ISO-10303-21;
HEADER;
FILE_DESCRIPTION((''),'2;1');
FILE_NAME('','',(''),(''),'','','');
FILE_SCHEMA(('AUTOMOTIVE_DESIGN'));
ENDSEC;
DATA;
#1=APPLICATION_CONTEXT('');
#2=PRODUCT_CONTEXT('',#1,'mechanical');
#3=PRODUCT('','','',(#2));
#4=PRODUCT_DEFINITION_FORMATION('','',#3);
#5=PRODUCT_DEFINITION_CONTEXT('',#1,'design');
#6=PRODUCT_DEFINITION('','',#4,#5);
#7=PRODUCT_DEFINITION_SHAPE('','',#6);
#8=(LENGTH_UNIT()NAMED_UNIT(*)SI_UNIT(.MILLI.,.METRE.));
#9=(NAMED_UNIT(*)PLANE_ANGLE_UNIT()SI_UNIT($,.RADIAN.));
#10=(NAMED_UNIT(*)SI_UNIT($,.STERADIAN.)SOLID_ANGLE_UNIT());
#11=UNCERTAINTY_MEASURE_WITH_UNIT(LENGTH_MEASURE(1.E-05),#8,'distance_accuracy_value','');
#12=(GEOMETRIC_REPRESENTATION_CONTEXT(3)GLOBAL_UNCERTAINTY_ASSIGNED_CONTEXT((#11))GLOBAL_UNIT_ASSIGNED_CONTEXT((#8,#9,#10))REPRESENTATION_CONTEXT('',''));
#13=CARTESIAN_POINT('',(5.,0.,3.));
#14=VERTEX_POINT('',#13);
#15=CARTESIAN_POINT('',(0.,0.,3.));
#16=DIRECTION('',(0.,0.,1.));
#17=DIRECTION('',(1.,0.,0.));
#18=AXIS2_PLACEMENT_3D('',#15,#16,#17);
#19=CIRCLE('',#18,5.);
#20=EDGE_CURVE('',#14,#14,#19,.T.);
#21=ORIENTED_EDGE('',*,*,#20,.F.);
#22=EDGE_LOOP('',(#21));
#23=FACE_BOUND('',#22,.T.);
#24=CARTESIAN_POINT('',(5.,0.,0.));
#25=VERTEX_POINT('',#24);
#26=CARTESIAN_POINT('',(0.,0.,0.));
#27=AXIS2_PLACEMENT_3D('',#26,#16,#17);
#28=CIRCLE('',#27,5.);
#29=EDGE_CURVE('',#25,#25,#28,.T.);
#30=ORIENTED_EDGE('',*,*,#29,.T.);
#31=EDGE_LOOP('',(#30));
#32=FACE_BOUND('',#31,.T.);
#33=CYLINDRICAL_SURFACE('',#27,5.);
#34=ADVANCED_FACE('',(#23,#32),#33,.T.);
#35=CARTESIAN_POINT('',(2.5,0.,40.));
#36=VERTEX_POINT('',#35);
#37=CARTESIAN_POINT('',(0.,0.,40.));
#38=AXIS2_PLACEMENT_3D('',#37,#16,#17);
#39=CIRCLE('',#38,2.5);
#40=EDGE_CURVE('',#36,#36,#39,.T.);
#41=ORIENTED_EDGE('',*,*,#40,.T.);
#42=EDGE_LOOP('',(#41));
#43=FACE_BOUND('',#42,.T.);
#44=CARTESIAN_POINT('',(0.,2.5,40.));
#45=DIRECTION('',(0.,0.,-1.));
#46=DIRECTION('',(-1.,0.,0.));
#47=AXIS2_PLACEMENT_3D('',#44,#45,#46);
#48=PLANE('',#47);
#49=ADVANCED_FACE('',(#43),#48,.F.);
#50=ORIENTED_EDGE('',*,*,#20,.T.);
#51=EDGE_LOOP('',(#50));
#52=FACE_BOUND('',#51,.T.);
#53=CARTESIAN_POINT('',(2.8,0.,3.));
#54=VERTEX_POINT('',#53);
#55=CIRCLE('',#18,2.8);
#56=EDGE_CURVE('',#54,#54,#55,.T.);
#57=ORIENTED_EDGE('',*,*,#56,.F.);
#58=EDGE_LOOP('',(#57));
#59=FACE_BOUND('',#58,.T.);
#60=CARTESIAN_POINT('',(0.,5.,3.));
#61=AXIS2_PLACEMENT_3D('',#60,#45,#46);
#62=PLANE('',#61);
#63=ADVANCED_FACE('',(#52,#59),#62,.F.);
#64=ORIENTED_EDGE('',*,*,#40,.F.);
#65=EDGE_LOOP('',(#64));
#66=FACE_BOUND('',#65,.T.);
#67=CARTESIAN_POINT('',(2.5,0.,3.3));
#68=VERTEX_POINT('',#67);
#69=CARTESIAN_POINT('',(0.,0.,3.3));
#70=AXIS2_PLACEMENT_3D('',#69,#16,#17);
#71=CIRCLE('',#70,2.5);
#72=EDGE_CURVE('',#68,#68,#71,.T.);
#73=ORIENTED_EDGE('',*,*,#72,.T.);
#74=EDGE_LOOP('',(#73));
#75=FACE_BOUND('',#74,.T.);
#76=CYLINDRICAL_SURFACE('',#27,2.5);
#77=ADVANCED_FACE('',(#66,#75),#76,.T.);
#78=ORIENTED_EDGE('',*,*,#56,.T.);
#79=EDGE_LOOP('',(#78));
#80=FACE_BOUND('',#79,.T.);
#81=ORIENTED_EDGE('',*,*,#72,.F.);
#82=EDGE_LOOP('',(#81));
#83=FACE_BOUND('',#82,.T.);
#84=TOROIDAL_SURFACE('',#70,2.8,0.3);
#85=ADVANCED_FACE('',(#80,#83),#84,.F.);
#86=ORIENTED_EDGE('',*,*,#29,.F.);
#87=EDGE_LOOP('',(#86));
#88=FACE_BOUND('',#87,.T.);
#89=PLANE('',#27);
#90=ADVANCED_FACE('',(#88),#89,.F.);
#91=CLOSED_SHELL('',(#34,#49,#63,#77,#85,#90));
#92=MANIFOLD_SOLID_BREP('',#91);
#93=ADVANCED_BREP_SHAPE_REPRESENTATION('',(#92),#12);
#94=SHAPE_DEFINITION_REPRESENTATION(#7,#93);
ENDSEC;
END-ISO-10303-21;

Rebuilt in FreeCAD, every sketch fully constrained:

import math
import FreeCAD as App
import Part
import Sketcher
from FreeCAD import Vector
Q = App.Units.Quantity

doc = App.newDocument("Part")
body = doc.addObject("PartDesign::Body", "Body")

# Sketch on YZ plane
sketch1 = doc.addObject("Sketcher::SketchObject", "Sketch")
body.addObject(sketch1)
sketch1.AttachmentSupport = (doc.YZ_Plane, [""])
sketch1.MapMode = "FlatFace"
sketch1.addGeometry(Part.LineSegment(Vector(0, 0, 0), Vector(5, 0, 0)), False)
sketch1.addGeometry(Part.LineSegment(Vector(5, 0, 0), Vector(5, 3, 0)), False)
sketch1.addGeometry(Part.LineSegment(Vector(5, 3, 0), Vector(2.8, 3, 0)), False)
sketch1.addGeometry(Part.ArcOfCircle(Part.Circle(Vector(2.8, 3.3, 0), Vector(0, 0, 1), 0.3), math.radians(-180), math.radians(-90)), False)
sketch1.addGeometry(Part.LineSegment(Vector(2.5, 3.3, 0), Vector(2.5, 40, 0)), False)
sketch1.addGeometry(Part.LineSegment(Vector(2.5, 40, 0), Vector(0, 40, 0)), False)
sketch1.addGeometry(Part.LineSegment(Vector(0, 40, 0), Vector(0, 0, 0)), False)
sketch1.addConstraint(Sketcher.Constraint("Coincident", 0, 2, 1, 1))
sketch1.addConstraint(Sketcher.Constraint("Coincident", 1, 2, 2, 1))
sketch1.addConstraint(Sketcher.Constraint("Tangent", 2, 2, 3, 2))
sketch1.addConstraint(Sketcher.Constraint("Tangent", 3, 1, 4, 1))
sketch1.addConstraint(Sketcher.Constraint("Coincident", 4, 2, 5, 1))
sketch1.addConstraint(Sketcher.Constraint("Coincident", 5, 2, 6, 1))
sketch1.addConstraint(Sketcher.Constraint("Coincident", 6, 2, 0, 1))
sketch1.addConstraint(Sketcher.Constraint("Horizontal", 0))
sketch1.addConstraint(Sketcher.Constraint("Vertical", 1))
sketch1.addConstraint(Sketcher.Constraint("Horizontal", 2))
sketch1.addConstraint(Sketcher.Constraint("Vertical", 4))
sketch1.addConstraint(Sketcher.Constraint("Horizontal", 5))
sketch1.addConstraint(Sketcher.Constraint("Vertical", 6))
sketch1.addConstraint(Sketcher.Constraint("Coincident", 6, 2, -1, 1))
sketch1.addConstraint(Sketcher.Constraint("Radius", 3, Q("0.3 mm")))
sketch1.addConstraint(Sketcher.Constraint("DistanceX", 0, 1, 0, 2, Q("5 mm")))
sketch1.addConstraint(Sketcher.Constraint("DistanceY", 1, 1, 1, 2, Q("3 mm")))
sketch1.addConstraint(Sketcher.Constraint("DistanceY", 6, 2, 6, 1, Q("40 mm")))
sketch1.addConstraint(Sketcher.Constraint("DistanceX", 2, 2, 2, 1, Q("2.2 mm")))
revolution = doc.addObject("PartDesign::Revolution", "Revolution")
body.addObject(revolution)
revolution.Profile = sketch1
revolution.ReferenceAxis = (sketch1, ["V_Axis"])
revolution.Angle = 360

doc.recompute()
